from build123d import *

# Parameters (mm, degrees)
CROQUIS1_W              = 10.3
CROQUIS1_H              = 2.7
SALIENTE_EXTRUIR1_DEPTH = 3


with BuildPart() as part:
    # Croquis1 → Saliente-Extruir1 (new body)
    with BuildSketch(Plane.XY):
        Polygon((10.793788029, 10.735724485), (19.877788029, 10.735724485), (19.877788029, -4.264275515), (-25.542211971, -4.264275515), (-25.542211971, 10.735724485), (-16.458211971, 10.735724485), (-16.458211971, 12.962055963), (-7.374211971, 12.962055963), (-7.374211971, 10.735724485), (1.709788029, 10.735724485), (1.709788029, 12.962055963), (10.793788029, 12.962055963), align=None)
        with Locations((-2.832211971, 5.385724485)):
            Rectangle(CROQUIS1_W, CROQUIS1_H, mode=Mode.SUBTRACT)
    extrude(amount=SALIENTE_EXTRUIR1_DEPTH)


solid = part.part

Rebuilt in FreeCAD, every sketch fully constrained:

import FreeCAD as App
import Part
import Sketcher


def add_polygon(sketch, points):
    """Adds a closed chain of lines whose ends are joined by coincident constraints."""
    first, n = sketch.GeometryCount, len(points)
    for a, b in zip(points, points[1:] + points[:1]):
        sketch.addGeometry(Part.LineSegment(App.Vector(*a, 0), App.Vector(*b, 0)), False)
    for i in range(n):
        sketch.addConstraint(Sketcher.Constraint("Coincident", first + i, 2, first + (i + 1) % n, 1))

doc = App.newDocument("Part")
body = doc.addObject("PartDesign::Body", "Body")

# Sketch on XY plane
sketch1 = doc.addObject("Sketcher::SketchObject", "Sketch")
body.addObject(sketch1)
sketch1.AttachmentSupport = (doc.XY_Plane, [""])
sketch1.MapMode = "FlatFace"
add_polygon(sketch1, [(19.9, 10.7), (10.8, 10.7), (10.8, 13), (1.7, 13), (1.7, 10.7), (-7.4, 10.7), (-7.4, 13), (-16.5, 13), (-16.5, 10.7), (-25.5, 10.7), (-25.5, -4.3), (19.9, -4.3)])  # lines 0-11
add_polygon(sketch1, [(-8, 4), (-8, 6.7), (2.3, 6.7), (2.3, 4)])  # lines 12-15
sketch1.addConstraint([
    Sketcher.Constraint("Horizontal", 0),
    Sketcher.Constraint("Vertical", 1),
    Sketcher.Constraint("Horizontal", 2),
    Sketcher.Constraint("Vertical", 3),
    Sketcher.Constraint("Horizontal", 4),
    Sketcher.Constraint("Vertical", 5),
    Sketcher.Constraint("Horizontal", 6),
    Sketcher.Constraint("Vertical", 7),
    Sketcher.Constraint("Horizontal", 8),
    Sketcher.Constraint("Vertical", 9),
    Sketcher.Constraint("Horizontal", 10),
    Sketcher.Constraint("Vertical", 11),
    Sketcher.Constraint("Vertical", 12),
    Sketcher.Constraint("Horizontal", 13),
    Sketcher.Constraint("Vertical", 14),
    Sketcher.Constraint("Horizontal", 15),
    Sketcher.Constraint("Horizontal", 0, 2, 3, 2),
    Sketcher.Constraint("Horizontal", 2, 2, 5, 2),
    Sketcher.Constraint("Horizontal", 4, 2, 7, 2),
    Sketcher.Constraint("Equal", 0, 2),
    Sketcher.Constraint("Equal", 2, 4),
    Sketcher.Constraint("Equal", 4, 6),
    Sketcher.Constraint("Equal", 6, 8),
    Sketcher.Constraint("DistanceY", 9, 2, 9, 1, 15.0),
    Sketcher.Constraint("DistanceX", 13, 1, 13, 2, 10.3),
    Sketcher.Constraint("DistanceY", 12, 1, 12, 2, 2.7),
    Sketcher.Constraint("DistanceY", 12, 2, 4, 2, 4.0),
    Sketcher.Constraint("DistanceX", 10, 1, 10, 2, 45.42),
    Sketcher.Constraint("DistanceX", 12, 2, 4, 2, 0.608),
    Sketcher.Constraint("DistanceY", 1, 1, 1, 2, 2.226331),
    Sketcher.Constraint("DistanceX", -1, 1, 0, 2, 10.793788),
    Sketcher.Constraint("DistanceY", -1, 1, 0, 2, 10.735724),
])
pad1 = doc.addObject("PartDesign::Pad", "Pad")
body.addObject(pad1)
pad1.Profile = sketch1
pad1.Length = 3

doc.recompute()
